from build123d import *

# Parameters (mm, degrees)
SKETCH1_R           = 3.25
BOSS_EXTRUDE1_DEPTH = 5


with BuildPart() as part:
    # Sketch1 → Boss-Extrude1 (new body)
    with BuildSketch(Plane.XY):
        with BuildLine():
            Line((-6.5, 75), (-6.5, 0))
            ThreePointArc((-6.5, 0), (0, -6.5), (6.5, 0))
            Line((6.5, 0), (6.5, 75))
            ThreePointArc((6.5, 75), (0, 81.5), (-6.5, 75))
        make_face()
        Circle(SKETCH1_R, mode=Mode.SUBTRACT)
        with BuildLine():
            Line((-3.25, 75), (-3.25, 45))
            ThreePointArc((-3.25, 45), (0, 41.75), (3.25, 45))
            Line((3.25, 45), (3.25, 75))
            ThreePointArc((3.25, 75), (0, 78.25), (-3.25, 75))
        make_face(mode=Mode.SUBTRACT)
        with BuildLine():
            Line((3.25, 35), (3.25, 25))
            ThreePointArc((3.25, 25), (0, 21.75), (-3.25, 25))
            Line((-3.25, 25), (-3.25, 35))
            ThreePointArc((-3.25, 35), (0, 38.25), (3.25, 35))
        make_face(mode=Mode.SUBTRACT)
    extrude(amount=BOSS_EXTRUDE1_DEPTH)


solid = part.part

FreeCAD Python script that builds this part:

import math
import FreeCAD as App
import Part
import Sketcher
from FreeCAD import Vector

doc = App.newDocument("Part")
body = doc.addObject("PartDesign::Body", "Body")

sketch1 = body.newObject("Sketcher::SketchObject", "Sketch")
sketch1.AttachmentSupport = (doc.getObject("XY_Plane"), [""])
sketch1.MapMode = "FlatFace"
sketch1.addGeometry([
    Part.LineSegment(Vector(-6.5, 75, 0), Vector(-6.5, 0, 0)),
    Part.ArcOfCircle(Part.Circle(Vector(0, 0, 0), Vector(0, 0, 1), 6.5), math.radians(180), math.radians(360)),
    Part.LineSegment(Vector(6.5, 0, 0), Vector(6.5, 75, 0)),
    Part.ArcOfCircle(Part.Circle(Vector(0, 75, 0), Vector(0, 0, 1), 6.5), math.radians(0), math.radians(180)),
    Part.Circle(Vector(0, 0, 0), Vector(0, 0, 1), 3.25),
    Part.ArcOfCircle(Part.Circle(Vector(0, 35, 0), Vector(0, 0, 1), 3.25), math.radians(0), math.radians(180)),
    Part.LineSegment(Vector(3.25, 35, 0), Vector(3.25, 25, 0)),
    Part.ArcOfCircle(Part.Circle(Vector(0, 25, 0), Vector(0, 0, 1), 3.25), math.radians(180), math.radians(360)),
    Part.LineSegment(Vector(-3.25, 25, 0), Vector(-3.25, 35, 0)),
    Part.LineSegment(Vector(-3.25, 45, 0), Vector(-3.25, 75, 0)),
    Part.ArcOfCircle(Part.Circle(Vector(0, 75, 0), Vector(0, 0, 1), 3.25), math.radians(0), math.radians(180)),
    Part.LineSegment(Vector(3.25, 75, 0), Vector(3.25, 45, 0)),
    Part.ArcOfCircle(Part.Circle(Vector(0, 45, 0), Vector(0, 0, 1), 3.25), math.radians(180), math.radians(360)),
], False)
sketch1.addConstraint([
    Sketcher.Constraint("Tangent", 0, 2, 1, 1),
    Sketcher.Constraint("Tangent", 1, 2, 2, 1),
    Sketcher.Constraint("Tangent", 2, 2, 3, 1),
    Sketcher.Constraint("Tangent", 3, 2, 0, 1),
    Sketcher.Constraint("Tangent", 5, 1, 6, 1),
    Sketcher.Constraint("Tangent", 6, 2, 7, 2),
    Sketcher.Constraint("Tangent", 7, 1, 8, 1),
    Sketcher.Constraint("Tangent", 8, 2, 5, 2),
    Sketcher.Constraint("Tangent", 9, 2, 10, 2),
    Sketcher.Constraint("Tangent", 10, 1, 11, 1),
    Sketcher.Constraint("Tangent", 11, 2, 12, 2),
    Sketcher.Constraint("Tangent", 12, 1, 9, 1),
    Sketcher.Constraint("Vertical", 0),
    Sketcher.Constraint("Vertical", 2),
    Sketcher.Constraint("Vertical", 6),
    Sketcher.Constraint("Vertical", 8),
    Sketcher.Constraint("Vertical", 9),
    Sketcher.Constraint("Vertical", 11),
    Sketcher.Constraint("Coincident", 1, 3, -1, 1),
    Sketcher.Constraint("Coincident", 4, 3, -1, 1),
    Sketcher.Constraint("Coincident", 10, 3, 3, 3),
    Sketcher.Constraint("Equal", 4, 5),
    Sketcher.Constraint("Equal", 7, 10),
    Sketcher.Constraint("PointOnObject", 5, 3, -2),
    Sketcher.Constraint("Diameter", 4, 6.5),
    Sketcher.Constraint("Radius", 1, 6.5),
    Sketcher.Constraint("DistanceY", 0, 2, 0, 1, 75.0),
    Sketcher.Constraint("DistanceY", 6, 2, 6, 1, 10.0),
    Sketcher.Constraint("DistanceY", 9, 1, 9, 2, 30.0),
    Sketcher.Constraint("DistanceY", -1, 1, 5, 3, 35.0),
])
pad1 = body.newObject("PartDesign::Pad", "Pad")
pad1.Profile = sketch1
pad1.Length = 5

doc.recompute()
